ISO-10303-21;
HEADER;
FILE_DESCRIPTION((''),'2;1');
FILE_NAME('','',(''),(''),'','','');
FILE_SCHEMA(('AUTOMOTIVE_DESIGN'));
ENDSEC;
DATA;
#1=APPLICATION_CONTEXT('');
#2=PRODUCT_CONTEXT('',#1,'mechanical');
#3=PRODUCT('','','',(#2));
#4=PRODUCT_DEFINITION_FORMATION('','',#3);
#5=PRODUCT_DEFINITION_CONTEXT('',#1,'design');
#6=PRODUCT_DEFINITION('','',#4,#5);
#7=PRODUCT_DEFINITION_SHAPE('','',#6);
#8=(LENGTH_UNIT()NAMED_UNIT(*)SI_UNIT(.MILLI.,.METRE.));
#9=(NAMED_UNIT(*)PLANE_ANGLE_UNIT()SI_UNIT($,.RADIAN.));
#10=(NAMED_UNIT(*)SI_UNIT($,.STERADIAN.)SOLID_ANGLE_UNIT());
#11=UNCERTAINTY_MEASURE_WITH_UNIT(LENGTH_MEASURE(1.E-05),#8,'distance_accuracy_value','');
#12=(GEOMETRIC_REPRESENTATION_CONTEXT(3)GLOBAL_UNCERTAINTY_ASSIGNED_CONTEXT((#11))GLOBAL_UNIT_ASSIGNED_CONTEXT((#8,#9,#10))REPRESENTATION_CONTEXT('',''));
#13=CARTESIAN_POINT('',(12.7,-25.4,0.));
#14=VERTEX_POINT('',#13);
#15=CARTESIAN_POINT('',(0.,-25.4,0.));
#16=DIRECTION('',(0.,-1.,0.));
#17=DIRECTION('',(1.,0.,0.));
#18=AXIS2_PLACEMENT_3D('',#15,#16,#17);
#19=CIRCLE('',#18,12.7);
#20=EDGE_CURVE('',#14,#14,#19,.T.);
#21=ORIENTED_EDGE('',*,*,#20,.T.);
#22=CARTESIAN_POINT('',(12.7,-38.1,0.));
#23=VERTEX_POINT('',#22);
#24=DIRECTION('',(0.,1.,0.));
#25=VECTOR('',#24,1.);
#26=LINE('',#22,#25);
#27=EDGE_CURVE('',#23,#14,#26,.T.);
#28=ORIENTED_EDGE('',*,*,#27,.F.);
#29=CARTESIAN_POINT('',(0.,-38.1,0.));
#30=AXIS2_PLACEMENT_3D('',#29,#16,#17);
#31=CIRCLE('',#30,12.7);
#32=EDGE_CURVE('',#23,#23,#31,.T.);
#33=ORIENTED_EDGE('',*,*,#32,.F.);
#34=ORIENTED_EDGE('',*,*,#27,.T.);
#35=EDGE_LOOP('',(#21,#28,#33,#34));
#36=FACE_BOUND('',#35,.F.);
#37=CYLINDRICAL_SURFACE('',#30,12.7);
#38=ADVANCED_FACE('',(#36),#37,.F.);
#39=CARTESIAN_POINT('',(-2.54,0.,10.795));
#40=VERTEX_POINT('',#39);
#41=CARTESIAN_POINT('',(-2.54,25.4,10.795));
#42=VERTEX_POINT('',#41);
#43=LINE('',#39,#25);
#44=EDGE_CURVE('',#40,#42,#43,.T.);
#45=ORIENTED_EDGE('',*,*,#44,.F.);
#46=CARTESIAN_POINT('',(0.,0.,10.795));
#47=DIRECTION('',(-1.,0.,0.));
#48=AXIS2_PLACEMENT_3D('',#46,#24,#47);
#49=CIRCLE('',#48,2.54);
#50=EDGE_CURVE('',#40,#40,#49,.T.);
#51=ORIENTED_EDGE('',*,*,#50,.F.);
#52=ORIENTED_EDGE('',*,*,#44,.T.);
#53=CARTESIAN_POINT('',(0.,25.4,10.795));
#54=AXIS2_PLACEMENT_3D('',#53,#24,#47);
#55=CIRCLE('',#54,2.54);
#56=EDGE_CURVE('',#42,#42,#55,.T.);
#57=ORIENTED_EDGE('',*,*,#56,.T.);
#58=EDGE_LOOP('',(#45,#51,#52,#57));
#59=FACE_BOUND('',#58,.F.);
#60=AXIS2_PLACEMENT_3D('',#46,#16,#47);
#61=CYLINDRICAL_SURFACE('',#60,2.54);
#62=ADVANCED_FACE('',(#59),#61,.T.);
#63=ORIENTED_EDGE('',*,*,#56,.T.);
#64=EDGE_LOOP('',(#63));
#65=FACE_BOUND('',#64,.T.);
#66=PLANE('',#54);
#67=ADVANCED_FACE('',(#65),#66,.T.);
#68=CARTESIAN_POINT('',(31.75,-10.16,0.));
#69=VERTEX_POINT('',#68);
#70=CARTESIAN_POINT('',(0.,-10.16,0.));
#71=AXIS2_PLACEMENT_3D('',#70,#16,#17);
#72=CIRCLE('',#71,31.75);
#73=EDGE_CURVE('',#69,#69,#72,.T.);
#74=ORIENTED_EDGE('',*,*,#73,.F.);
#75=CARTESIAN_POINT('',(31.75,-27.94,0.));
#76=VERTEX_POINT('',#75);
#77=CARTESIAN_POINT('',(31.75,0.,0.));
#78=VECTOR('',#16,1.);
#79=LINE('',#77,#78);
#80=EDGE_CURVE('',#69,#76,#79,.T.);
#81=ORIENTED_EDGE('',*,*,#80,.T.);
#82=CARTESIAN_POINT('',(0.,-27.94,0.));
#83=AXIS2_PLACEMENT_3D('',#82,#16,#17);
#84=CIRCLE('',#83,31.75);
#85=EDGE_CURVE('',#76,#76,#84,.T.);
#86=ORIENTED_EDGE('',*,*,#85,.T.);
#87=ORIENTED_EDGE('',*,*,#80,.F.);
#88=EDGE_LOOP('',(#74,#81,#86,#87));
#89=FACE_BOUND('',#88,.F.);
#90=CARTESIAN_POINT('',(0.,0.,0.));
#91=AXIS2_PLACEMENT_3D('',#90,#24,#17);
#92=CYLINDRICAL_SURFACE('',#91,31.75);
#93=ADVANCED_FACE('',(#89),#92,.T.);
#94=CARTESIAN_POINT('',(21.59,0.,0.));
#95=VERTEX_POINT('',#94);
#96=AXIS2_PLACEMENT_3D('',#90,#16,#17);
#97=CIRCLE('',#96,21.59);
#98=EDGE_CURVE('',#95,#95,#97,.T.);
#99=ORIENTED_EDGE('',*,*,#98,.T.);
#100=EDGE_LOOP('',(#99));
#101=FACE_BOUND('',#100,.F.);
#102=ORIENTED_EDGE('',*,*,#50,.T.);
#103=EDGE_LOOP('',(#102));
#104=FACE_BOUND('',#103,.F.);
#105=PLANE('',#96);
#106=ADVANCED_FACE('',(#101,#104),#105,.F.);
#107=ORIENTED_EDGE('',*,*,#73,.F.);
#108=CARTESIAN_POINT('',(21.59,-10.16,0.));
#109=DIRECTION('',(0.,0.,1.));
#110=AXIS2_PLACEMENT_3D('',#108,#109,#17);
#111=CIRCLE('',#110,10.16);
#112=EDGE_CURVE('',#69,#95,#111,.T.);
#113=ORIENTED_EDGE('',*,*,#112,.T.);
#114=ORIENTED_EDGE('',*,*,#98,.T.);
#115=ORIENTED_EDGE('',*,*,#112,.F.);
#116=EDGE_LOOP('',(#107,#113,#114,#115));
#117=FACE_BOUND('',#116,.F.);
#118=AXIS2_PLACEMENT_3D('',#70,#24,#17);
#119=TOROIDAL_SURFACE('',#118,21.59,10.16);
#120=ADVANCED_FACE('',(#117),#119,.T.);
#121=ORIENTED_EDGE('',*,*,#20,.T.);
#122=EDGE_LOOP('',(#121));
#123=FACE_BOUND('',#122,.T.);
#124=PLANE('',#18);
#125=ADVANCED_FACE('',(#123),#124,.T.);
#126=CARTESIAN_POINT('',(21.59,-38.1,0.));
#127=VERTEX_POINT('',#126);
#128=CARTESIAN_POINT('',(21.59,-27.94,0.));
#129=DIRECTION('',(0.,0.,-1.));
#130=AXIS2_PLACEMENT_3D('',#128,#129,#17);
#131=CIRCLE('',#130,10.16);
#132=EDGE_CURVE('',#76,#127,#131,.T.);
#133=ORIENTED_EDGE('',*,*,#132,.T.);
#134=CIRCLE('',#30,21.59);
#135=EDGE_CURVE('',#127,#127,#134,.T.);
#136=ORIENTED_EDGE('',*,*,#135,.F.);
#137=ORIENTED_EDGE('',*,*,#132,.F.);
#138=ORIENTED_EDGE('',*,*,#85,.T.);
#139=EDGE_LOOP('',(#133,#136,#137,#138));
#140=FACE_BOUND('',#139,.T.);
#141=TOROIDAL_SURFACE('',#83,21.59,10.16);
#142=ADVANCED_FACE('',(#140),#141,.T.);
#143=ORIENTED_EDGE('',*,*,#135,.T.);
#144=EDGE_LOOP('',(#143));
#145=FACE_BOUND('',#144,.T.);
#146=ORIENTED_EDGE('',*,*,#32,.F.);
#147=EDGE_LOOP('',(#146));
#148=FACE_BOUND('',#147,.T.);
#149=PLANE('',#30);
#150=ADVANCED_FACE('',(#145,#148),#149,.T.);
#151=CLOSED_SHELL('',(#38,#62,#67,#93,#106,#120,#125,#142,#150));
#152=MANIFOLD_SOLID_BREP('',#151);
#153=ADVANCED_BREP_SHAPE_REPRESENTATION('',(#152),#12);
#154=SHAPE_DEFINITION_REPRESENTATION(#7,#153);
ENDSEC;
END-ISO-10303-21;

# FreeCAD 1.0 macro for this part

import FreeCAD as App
import Part
import Sketcher
from FreeCAD import Vector
Q = App.Units.Quantity


def edges_at(feature, points):
    """Names of the edges that pass closest to the given points."""
    edges = feature.Shape.Edges
    near = lambda p: min(range(len(edges)), key=lambda i: edges[i].distToShape(Part.Vertex(*p))[0])
    return sorted({f"Edge{near(p) + 1}" for p in points})

doc = App.newDocument("Part")
body = doc.addObject("PartDesign::Body", "Body")

sketch1 = body.newObject("Sketcher::SketchObject", "Sketch")
sketch1.AttachmentSupport = (doc.getObject("XZ_Plane"), [""])
sketch1.MapMode = "FlatFace"
sketch1.addGeometry(Part.Circle(Vector(0, 0, 0), Vector(0, 0, 1), 31.75), False)
sketch1.addConstraint(Sketcher.Constraint("Coincident", 0, 3, -1, 1))
sketch1.addConstraint(Sketcher.Constraint("Diameter", 0, Q("2.5 in")))
pad1 = body.newObject("PartDesign::Pad", "Pad")
pad1.Profile = sketch1
pad1.Length = Q("1.5 in")
doc.recompute()

fillet = body.newObject("PartDesign::Fillet", "Fillet")
fillet.Base = (pad1, edges_at(pad1, [(-31.75, -38.1, 0), (-31.75, 0, 0)]))
fillet.Radius = Q("0.4 in")

sketch2 = body.newObject("Sketcher::SketchObject", "Sketch001")
sketch2.AttachmentSupport = (doc.getObject("XZ_Plane"), [""])
sketch2.MapMode = "FlatFace"
sketch2.AttachmentOffset = App.Placement(Vector(0, 0, 1.5 * 25.4), App.Rotation())
sketch2.addGeometry(Part.Circle(Vector(0, 0, 0), Vector(0, 0, 1), 12.7), False)
sketch2.addConstraint(Sketcher.Constraint("Coincident", 0, 3, -1, 1))
sketch2.addConstraint(Sketcher.Constraint("Diameter", 0, Q("1 in")))
pocket1 = body.newObject("PartDesign::Pocket", "Pocket")
pocket1.Profile = sketch2
pocket1.Length = Q("0.5 in")

sketch3 = body.newObject("Sketcher::SketchObject", "Sketch002")
sketch3.AttachmentSupport = (doc.getObject("XZ_Plane"), [""])
sketch3.MapMode = "FlatFace"
sketch3.addGeometry(Part.Circle(Vector(0, 10.795, 0), Vector(0, 0, 1), 2.54), False)
sketch3.addConstraint(Sketcher.Constraint("PointOnObject", 0, 3, -2))
sketch3.addConstraint(Sketcher.Constraint("Diameter", 0, Q("0.2 in")))
sketch3.addConstraint(Sketcher.Constraint("DistanceY", -1, 1, 0, 3, Q("0.425 in")))
pad2 = body.newObject("PartDesign::Pad", "Pad001")
pad2.Profile = sketch3
pad2.Length = Q("1 in")
pad2.Reversed = True

doc.recompute()
